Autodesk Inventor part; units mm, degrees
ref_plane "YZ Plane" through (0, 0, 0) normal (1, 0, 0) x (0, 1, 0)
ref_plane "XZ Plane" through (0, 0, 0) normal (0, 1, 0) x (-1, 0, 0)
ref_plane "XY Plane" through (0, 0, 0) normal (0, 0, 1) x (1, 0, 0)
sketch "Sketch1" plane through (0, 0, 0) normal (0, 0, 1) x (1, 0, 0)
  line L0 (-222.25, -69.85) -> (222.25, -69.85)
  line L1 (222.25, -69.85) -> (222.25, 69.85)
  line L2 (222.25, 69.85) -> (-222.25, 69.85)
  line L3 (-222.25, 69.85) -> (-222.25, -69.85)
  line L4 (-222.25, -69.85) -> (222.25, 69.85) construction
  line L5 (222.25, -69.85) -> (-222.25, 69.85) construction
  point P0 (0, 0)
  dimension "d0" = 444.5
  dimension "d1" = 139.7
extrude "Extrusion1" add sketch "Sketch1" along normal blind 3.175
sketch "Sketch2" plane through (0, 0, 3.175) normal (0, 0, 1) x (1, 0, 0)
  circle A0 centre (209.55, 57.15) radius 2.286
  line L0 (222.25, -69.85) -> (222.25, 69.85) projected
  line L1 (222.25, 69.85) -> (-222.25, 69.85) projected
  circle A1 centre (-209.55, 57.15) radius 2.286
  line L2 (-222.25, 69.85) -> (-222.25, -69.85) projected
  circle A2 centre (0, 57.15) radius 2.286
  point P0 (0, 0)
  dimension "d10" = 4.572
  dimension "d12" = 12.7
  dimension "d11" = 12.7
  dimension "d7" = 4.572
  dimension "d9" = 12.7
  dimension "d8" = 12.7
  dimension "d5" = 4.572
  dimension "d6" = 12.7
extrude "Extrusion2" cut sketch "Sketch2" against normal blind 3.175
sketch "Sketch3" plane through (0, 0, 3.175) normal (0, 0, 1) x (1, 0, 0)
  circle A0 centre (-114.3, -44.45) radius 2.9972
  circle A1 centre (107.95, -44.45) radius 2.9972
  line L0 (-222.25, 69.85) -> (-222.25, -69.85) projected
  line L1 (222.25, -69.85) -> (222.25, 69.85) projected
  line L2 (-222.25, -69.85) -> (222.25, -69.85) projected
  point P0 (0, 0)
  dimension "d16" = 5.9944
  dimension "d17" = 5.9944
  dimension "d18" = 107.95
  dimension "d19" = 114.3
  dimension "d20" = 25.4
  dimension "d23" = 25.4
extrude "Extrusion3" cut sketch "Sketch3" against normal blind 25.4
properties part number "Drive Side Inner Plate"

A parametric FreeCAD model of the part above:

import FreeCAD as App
import Part
import Sketcher
Q = App.Units.Quantity

doc = App.newDocument("Part")
params = doc.addObject("Spreadsheet::Sheet", "Params")
for row, (alias, value) in enumerate([
    ("sketch1_width", "17.5 in"),
    ("sketch1_height", "5.5 in"),
    ("pad1_length", "0.125 in"),
    ("sketch2_diameter", "0.18 in"),
    ("pocket1_length", "0.125 in"),
    ("sketch3_diameter", "0.236 in"),
    ("pocket2_length", "1 in"),
], start=1):
    params.set(f"A{row}", alias)
    params.set(f"B{row}", "=" + value)
    params.setAlias(f"B{row}", alias)

body = doc.addObject("PartDesign::Body", "Body")

sketch1 = doc.addObject("Sketcher::SketchObject", "Sketch")
body.addObject(sketch1)
sketch1.AttachmentSupport = (doc.XY_Plane, [""])
sketch1.MapMode = "FlatFace"
sketch1.addGeometry([
    Part.LineSegment(App.Vector(-222, 70, 0), App.Vector(-222, -70, 0)),
    Part.LineSegment(App.Vector(-222, -70, 0), App.Vector(222, -70, 0)),
    Part.LineSegment(App.Vector(222, -70, 0), App.Vector(222, 70, 0)),
    Part.LineSegment(App.Vector(222, 70, 0), App.Vector(-222, 70, 0)),
], False)
sketch1.addConstraint([
    Sketcher.Constraint("Coincident", 0, 2, 1, 1),
    Sketcher.Constraint("Coincident", 1, 2, 2, 1),
    Sketcher.Constraint("Coincident", 2, 2, 3, 1),
    Sketcher.Constraint("Coincident", 3, 2, 0, 1),
    Sketcher.Constraint("Vertical", 0),
    Sketcher.Constraint("Horizontal", 1),
    Sketcher.Constraint("Vertical", 2),
    Sketcher.Constraint("Horizontal", 3),
    Sketcher.Constraint("Symmetric", 0, 2, 2, 2, -1, 1),
    Sketcher.Constraint("DistanceX", 1, 1, 1, 2, Q("17.5 in")),
    Sketcher.Constraint("DistanceY", 0, 2, 0, 1, Q("5.5 in")),
])
sketch1.setExpression("Constraints[9]", "Params.sketch1_width")
sketch1.setExpression("Constraints[10]", "Params.sketch1_height")
pad1 = doc.addObject("PartDesign::Pad", "Pad")
body.addObject(pad1)
pad1.Profile = sketch1
pad1.setExpression("Length", "Params.pad1_length")

sketch2 = doc.addObject("Sketcher::SketchObject", "Sketch001")
body.addObject(sketch2)
sketch2.AttachmentSupport = (doc.XY_Plane, [""])
sketch2.MapMode = "FlatFace"
sketch2.AttachmentOffset = App.Placement(App.Vector(0, 0, 0.125 * 25.4), App.Rotation())
sketch2.addGeometry([
    Part.Circle(App.Vector(209.6, 57.1, 0), App.Vector(0, 0, 1), 2.3),
    Part.Circle(App.Vector(-209.6, 57.1, 0), App.Vector(0, 0, 1), 2.3),
    Part.Circle(App.Vector(0, 57.1, 0), App.Vector(0, 0, 1), 2.3),
], False)
sketch2.addConstraint([
    Sketcher.Constraint("Equal", 0, 1),
    Sketcher.Constraint("Equal", 1, 2),
    Sketcher.Constraint("Symmetric", 0, 3, 1, 3, -2),
    Sketcher.Constraint("PointOnObject", 2, 3, -2),
    Sketcher.Constraint("Horizontal", 1, 3, 2, 3),
    Sketcher.Constraint("Diameter", 0, Q("0.18 in")),
    Sketcher.Constraint("DistanceX", 1, 3, 0, 3, Q("16.5 in")),
    Sketcher.Constraint("DistanceY", -1, 1, 0, 3, Q("2.25 in")),
])
sketch2.setExpression("Constraints[5]", "Params.sketch2_diameter")
pocket1 = doc.addObject("PartDesign::Pocket", "Pocket")
body.addObject(pocket1)
pocket1.Profile = sketch2
pocket1.setExpression("Length", "Params.pocket1_length")

sketch3 = doc.addObject("Sketcher::SketchObject", "Sketch002")
body.addObject(sketch3)
sketch3.AttachmentSupport = (doc.XY_Plane, [""])
sketch3.MapMode = "FlatFace"
sketch3.AttachmentOffset = App.Placement(App.Vector(0, 0, 0.125 * 25.4), App.Rotation())
sketch3.addGeometry([
    Part.Circle(App.Vector(-114.3, -44.5, 0), App.Vector(0, 0, 1), 3),
    Part.Circle(App.Vector(108, -44.5, 0), App.Vector(0, 0, 1), 3),
], False)
sketch3.addConstraint([
    Sketcher.Constraint("Equal", 0, 1),
    Sketcher.Constraint("Horizontal", 0, 3, 1, 3),
    Sketcher.Constraint("Diameter", 0, Q("0.236 in")),
    Sketcher.Constraint("DistanceX", 0, 3, -1, 1, Q("4.5 in")),
    Sketcher.Constraint("DistanceX", -1, 1, 1, 3, Q("4.25 in")),
    Sketcher.Constraint("DistanceY", 0, 3, -1, 1, Q("1.75 in")),
])
sketch3.setExpression("Constraints[2]", "Params.sketch3_diameter")
pocket2 = doc.addObject("PartDesign::Pocket", "Pocket001")
body.addObject(pocket2)
pocket2.Profile = sketch3
pocket2.setExpression("Length", "Params.pocket2_length")

doc.recompute()
